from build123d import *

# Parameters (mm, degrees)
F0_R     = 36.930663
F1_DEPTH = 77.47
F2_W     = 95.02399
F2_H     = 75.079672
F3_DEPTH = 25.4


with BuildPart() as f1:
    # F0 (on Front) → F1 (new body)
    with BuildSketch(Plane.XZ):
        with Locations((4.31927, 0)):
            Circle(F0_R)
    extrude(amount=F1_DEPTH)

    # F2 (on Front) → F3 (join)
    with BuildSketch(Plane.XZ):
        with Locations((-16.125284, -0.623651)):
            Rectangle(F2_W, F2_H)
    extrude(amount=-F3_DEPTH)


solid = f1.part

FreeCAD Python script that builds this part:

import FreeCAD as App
import Part
import Sketcher
Q = App.Units.Quantity


def add_polygon(sketch, points):
    """Adds a closed chain of lines whose ends are joined by coincident constraints."""
    first, n = sketch.GeometryCount, len(points)
    for a, b in zip(points, points[1:] + points[:1]):
        sketch.addGeometry(Part.LineSegment(App.Vector(*a, 0), App.Vector(*b, 0)), False)
    for i in range(n):
        sketch.addConstraint(Sketcher.Constraint("Coincident", first + i, 2, first + (i + 1) % n, 1))

doc = App.newDocument("Part")
body = doc.addObject("PartDesign::Body", "Body")

# Sketch on XZ plane
sketch1 = body.newObject("Sketcher::SketchObject", "Sketch")
sketch1.AttachmentSupport = (doc.getObject("XZ_Plane"), [""])
sketch1.MapMode = "FlatFace"
sketch1.addGeometry(Part.Circle(App.Vector(4, 0, 0), App.Vector(0, 0, 1), 37), False)
sketch1.addConstraint(Sketcher.Constraint("PointOnObject", 0, 3, -1))
sketch1.addConstraint(Sketcher.Constraint("Diameter", 0, 73.861326))
sketch1.addConstraint(Sketcher.Constraint("DistanceX", -1, 1, 0, 3, 4.31927))
pad1 = body.newObject("PartDesign::Pad", "Pad")
pad1.Profile = sketch1
pad1.Length = Q("3.05 in")

# Sketch on XZ plane
sketch2 = body.newObject("Sketcher::SketchObject", "Sketch001")
sketch2.AttachmentSupport = (doc.getObject("XZ_Plane"), [""])
sketch2.MapMode = "FlatFace"
add_polygon(sketch2, [(-64, 37), (-64, -38), (31, -38), (31, 37)])  # lines 0-3
sketch2.addConstraint(Sketcher.Constraint("Vertical", 0))
sketch2.addConstraint(Sketcher.Constraint("Horizontal", 1))
sketch2.addConstraint(Sketcher.Constraint("Vertical", 2))
sketch2.addConstraint(Sketcher.Constraint("Horizontal", 3))
sketch2.addConstraint(Sketcher.Constraint("DistanceX", 1, 1, 1, 2, 95.02399))
sketch2.addConstraint(Sketcher.Constraint("DistanceY", 0, 2, 0, 1, 75.079672))
sketch2.addConstraint(Sketcher.Constraint("DistanceX", 0, 2, -1, 1, 63.637279))
sketch2.addConstraint(Sketcher.Constraint("DistanceY", 0, 2, -1, 1, 38.163487))
pad2 = body.newObject("PartDesign::Pad", "Pad001")
pad2.Profile = sketch2
pad2.Length = Q("1 in")
pad2.Reversed = True

doc.recompute()
